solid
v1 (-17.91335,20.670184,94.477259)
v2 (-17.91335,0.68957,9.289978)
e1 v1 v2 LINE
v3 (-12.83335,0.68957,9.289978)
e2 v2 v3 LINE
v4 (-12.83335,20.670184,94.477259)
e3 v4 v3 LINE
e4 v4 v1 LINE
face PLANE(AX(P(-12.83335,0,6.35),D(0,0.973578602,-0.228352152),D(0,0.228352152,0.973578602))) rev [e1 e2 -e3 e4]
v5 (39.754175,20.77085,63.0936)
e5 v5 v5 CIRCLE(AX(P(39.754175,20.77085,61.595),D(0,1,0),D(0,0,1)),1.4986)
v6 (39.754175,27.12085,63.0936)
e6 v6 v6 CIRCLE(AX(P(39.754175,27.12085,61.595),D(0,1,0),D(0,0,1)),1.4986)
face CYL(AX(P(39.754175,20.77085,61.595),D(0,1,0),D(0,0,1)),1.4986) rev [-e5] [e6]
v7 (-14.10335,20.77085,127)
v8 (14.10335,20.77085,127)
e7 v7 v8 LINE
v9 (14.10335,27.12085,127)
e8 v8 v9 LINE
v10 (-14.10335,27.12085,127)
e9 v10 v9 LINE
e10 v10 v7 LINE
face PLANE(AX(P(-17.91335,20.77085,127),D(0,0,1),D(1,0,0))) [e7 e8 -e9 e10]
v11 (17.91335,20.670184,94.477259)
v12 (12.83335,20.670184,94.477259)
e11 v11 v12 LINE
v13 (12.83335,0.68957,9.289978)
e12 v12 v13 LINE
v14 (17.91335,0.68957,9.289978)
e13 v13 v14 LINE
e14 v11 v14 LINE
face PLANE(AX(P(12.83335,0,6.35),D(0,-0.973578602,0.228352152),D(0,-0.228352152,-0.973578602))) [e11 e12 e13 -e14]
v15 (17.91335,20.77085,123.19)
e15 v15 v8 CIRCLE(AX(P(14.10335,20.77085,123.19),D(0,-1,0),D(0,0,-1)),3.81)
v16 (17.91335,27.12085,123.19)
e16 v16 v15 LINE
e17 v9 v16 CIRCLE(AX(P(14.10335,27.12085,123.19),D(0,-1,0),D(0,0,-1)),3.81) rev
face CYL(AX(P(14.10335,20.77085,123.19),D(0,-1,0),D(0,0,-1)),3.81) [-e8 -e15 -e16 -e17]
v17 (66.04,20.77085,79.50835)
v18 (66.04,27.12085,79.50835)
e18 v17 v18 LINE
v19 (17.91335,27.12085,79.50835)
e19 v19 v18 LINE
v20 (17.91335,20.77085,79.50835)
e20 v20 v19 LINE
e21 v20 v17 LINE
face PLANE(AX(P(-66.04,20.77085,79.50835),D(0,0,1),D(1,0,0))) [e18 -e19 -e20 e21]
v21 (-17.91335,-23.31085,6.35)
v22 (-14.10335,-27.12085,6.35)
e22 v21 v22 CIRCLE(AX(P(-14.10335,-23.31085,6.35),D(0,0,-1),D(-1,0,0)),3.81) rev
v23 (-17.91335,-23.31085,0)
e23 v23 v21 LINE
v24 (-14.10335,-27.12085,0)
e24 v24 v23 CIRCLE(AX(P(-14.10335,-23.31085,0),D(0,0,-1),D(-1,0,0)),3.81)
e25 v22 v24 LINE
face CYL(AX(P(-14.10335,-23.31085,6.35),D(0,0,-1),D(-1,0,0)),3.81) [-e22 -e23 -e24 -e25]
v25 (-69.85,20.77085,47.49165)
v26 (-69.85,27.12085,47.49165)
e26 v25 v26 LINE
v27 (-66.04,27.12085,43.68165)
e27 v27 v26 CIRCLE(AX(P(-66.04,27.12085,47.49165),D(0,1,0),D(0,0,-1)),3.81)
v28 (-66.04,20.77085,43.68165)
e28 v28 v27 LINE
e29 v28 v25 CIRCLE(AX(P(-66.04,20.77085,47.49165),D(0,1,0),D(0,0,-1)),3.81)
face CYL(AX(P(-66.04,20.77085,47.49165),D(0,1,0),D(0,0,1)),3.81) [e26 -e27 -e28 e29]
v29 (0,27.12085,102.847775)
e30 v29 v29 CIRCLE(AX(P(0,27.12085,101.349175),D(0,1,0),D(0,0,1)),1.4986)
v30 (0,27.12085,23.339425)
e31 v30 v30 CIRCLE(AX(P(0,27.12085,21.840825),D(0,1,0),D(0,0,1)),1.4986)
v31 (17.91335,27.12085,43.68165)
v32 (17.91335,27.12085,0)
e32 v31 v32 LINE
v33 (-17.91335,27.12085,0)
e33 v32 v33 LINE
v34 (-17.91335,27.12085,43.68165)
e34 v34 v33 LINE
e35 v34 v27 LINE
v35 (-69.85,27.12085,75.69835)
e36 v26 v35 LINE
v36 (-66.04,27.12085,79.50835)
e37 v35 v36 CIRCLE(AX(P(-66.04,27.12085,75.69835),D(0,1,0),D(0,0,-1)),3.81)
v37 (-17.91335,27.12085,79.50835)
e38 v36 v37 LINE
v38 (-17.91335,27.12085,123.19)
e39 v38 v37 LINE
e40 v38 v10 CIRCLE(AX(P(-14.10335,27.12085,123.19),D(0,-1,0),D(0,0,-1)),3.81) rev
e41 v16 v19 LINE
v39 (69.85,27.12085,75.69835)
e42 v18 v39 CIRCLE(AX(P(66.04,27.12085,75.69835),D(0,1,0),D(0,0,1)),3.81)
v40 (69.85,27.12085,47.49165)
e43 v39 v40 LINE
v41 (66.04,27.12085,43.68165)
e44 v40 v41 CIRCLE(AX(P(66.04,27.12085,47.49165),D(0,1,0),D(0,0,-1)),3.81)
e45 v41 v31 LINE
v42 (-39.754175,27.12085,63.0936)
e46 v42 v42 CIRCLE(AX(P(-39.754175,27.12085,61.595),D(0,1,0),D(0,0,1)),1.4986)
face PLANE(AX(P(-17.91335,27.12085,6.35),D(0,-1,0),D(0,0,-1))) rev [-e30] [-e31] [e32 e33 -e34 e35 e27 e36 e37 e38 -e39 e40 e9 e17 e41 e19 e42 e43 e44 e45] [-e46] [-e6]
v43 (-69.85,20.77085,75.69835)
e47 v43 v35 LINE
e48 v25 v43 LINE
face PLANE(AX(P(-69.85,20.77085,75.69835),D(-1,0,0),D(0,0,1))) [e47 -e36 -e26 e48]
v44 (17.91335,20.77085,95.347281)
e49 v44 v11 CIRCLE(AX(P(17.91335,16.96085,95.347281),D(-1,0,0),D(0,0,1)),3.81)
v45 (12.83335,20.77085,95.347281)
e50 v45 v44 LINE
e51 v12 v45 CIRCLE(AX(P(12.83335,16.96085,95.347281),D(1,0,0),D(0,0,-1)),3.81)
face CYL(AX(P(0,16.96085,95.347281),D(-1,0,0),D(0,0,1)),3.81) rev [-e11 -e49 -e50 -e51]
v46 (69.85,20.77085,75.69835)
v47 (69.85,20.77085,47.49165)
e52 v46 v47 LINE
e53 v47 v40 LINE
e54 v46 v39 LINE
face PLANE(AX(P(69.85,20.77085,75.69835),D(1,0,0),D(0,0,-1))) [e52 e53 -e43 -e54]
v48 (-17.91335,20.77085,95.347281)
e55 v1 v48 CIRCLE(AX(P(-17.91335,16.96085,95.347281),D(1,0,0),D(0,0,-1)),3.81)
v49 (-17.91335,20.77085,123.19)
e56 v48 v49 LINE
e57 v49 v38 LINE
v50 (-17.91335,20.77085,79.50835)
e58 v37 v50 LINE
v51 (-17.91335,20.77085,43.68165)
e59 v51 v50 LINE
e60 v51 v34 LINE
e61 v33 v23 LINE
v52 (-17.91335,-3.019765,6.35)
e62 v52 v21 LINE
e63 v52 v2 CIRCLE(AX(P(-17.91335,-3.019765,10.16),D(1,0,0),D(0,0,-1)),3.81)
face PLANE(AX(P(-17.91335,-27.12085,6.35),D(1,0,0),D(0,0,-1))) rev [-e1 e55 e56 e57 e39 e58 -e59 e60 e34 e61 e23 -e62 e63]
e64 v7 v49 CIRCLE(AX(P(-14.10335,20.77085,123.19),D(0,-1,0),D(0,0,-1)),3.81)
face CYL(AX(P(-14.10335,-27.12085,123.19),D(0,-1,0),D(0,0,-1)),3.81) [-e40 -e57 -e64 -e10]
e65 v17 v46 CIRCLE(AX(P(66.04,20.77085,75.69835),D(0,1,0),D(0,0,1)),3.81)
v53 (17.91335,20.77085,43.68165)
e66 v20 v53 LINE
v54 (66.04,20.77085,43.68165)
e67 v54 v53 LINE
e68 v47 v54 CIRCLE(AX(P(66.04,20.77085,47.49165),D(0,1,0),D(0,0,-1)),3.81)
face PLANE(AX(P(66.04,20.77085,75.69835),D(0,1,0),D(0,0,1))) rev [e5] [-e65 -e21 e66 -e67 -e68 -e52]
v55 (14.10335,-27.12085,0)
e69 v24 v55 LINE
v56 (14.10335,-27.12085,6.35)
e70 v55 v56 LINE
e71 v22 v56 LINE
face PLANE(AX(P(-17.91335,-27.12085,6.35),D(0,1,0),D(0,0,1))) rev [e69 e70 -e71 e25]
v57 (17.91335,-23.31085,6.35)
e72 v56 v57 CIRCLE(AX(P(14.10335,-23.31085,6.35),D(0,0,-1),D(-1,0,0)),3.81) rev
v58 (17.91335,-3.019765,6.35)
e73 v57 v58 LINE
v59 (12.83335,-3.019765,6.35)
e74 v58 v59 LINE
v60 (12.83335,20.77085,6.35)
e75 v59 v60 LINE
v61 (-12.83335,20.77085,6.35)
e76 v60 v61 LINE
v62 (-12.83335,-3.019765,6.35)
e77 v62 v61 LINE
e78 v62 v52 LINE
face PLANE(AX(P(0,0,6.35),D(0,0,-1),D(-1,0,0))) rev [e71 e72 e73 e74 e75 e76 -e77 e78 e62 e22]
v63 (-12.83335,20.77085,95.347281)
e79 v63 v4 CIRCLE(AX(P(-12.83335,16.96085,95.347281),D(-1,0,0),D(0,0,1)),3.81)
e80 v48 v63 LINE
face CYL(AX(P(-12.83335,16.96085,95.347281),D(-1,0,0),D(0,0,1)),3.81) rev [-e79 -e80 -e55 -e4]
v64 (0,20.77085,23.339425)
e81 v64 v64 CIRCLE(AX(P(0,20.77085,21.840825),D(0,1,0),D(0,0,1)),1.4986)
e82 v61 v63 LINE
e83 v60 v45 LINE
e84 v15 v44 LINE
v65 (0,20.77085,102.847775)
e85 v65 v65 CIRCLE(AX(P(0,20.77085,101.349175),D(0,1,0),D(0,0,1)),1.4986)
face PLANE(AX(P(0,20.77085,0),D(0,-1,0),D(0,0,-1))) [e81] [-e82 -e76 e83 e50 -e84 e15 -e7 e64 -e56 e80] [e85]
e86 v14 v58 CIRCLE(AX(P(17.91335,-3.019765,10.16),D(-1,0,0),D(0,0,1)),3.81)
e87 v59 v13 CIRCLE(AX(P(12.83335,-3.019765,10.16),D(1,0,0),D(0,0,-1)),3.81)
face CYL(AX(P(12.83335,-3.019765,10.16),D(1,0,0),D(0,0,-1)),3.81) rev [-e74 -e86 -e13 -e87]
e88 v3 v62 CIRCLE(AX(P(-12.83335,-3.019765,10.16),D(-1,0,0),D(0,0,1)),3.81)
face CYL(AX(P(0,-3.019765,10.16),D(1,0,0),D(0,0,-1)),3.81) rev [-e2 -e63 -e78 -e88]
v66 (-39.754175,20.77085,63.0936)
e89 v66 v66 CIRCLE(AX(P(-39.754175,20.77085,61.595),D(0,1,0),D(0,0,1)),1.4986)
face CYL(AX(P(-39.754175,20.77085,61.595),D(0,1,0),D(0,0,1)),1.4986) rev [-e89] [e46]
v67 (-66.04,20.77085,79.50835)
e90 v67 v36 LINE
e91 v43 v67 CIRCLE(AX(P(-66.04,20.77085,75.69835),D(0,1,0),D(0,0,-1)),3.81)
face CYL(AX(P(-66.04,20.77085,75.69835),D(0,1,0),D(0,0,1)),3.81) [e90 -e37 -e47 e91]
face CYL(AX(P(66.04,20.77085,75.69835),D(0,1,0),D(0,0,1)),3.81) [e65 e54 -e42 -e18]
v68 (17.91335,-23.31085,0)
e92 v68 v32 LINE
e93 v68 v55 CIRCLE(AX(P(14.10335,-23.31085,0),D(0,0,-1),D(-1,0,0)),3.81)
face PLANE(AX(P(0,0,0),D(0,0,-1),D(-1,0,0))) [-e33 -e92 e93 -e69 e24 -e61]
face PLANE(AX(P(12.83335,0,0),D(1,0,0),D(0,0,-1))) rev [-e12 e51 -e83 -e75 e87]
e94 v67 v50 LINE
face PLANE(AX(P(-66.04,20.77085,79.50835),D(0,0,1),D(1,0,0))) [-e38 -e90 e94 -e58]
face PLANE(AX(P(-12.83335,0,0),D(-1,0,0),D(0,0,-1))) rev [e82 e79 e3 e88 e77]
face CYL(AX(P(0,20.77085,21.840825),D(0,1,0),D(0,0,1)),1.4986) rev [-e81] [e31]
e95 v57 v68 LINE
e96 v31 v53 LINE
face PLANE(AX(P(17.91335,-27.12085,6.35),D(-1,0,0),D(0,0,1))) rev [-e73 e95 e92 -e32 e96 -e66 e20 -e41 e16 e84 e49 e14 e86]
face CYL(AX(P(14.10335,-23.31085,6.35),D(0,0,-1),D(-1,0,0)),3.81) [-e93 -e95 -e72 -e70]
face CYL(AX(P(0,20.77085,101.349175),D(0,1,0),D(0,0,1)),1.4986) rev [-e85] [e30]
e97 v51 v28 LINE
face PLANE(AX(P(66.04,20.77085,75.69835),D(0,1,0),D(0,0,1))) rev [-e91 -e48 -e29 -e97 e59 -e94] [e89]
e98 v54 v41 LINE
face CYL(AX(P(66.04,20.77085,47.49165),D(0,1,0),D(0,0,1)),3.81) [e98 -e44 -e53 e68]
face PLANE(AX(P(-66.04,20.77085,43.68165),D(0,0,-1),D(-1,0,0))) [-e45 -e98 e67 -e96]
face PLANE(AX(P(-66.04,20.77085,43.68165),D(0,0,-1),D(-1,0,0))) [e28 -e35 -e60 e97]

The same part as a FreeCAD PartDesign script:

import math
import FreeCAD as App
import Part
import Sketcher
from FreeCAD import Vector
Q = App.Units.Quantity


def edges_at(feature, points):
    """Names of the edges that pass closest to the given points."""
    edges = feature.Shape.Edges
    near = lambda p: min(range(len(edges)), key=lambda i: edges[i].distToShape(Part.Vertex(*p))[0])
    return sorted({f"Edge{near(p) + 1}" for p in points})

doc = App.newDocument("Part")
body = doc.addObject("PartDesign::Body", "Body")

# Sketch on XY plane
sketch1 = doc.addObject("Sketcher::SketchObject", "Sketch")
body.addObject(sketch1)
sketch1.AttachmentSupport = (doc.XY_Plane, [""])
sketch1.MapMode = "FlatFace"
sketch1.addGeometry(Part.LineSegment(Vector(-18, 27, 0), Vector(-18, -27, 0)), False)
sketch1.addGeometry(Part.LineSegment(Vector(-18, -27, 0), Vector(18, -27, 0)), False)
sketch1.addGeometry(Part.LineSegment(Vector(18, -27, 0), Vector(18, 27, 0)), False)
sketch1.addGeometry(Part.LineSegment(Vector(18, 27, 0), Vector(-18, 27, 0)), False)
sketch1.addConstraint(Sketcher.Constraint("Coincident", 0, 2, 1, 1))
sketch1.addConstraint(Sketcher.Constraint("Coincident", 1, 2, 2, 1))
sketch1.addConstraint(Sketcher.Constraint("Coincident", 2, 2, 3, 1))
sketch1.addConstraint(Sketcher.Constraint("Coincident", 3, 2, 0, 1))
sketch1.addConstraint(Sketcher.Constraint("Vertical", 0))
sketch1.addConstraint(Sketcher.Constraint("Horizontal", 1))
sketch1.addConstraint(Sketcher.Constraint("Vertical", 2))
sketch1.addConstraint(Sketcher.Constraint("Horizontal", 3))
sketch1.addConstraint(Sketcher.Constraint("Symmetric", 0, 2, 2, 2, -1, 1))
sketch1.addConstraint(Sketcher.Constraint("DistanceX", 1, 1, 1, 2, Q("1.4105 in")))
sketch1.addConstraint(Sketcher.Constraint("DistanceY", 0, 2, 0, 1, Q("2.1355 in")))
pad1 = doc.addObject("PartDesign::Pad", "Pad")
body.addObject(pad1)
pad1.Profile = sketch1
pad1.Length = Q("0.25 in")

# Sketch on XZ plane
sketch2 = doc.addObject("Sketcher::SketchObject", "Sketch001")
body.addObject(sketch2)
sketch2.AttachmentSupport = (doc.XZ_Plane, [""])
sketch2.MapMode = "FlatFace"
sketch2.AttachmentOffset = App.Placement(Vector(0, 0, -27.12085), App.Rotation())
sketch2.addGeometry(Part.LineSegment(Vector(-18, 0, 0), Vector(-18, 127, 0)), False)
sketch2.addGeometry(Part.LineSegment(Vector(-18, 127, 0), Vector(18, 127, 0)), False)
sketch2.addGeometry(Part.LineSegment(Vector(18, 127, 0), Vector(18, 0, 0)), False)
sketch2.addGeometry(Part.LineSegment(Vector(18, 0, 0), Vector(-18, 0, 0)), False)
sketch2.addConstraint(Sketcher.Constraint("Coincident", 0, 2, 1, 1))
sketch2.addConstraint(Sketcher.Constraint("Coincident", 1, 2, 2, 1))
sketch2.addConstraint(Sketcher.Constraint("Coincident", 2, 2, 3, 1))
sketch2.addConstraint(Sketcher.Constraint("Coincident", 3, 2, 0, 1))
sketch2.addConstraint(Sketcher.Constraint("Vertical", 0))
sketch2.addConstraint(Sketcher.Constraint("Horizontal", 1))
sketch2.addConstraint(Sketcher.Constraint("Vertical", 2))
sketch2.addConstraint(Sketcher.Constraint("Horizontal", 3))
sketch2.addConstraint(Sketcher.Constraint("Symmetric", 2, 2, 3, 2, -1, 1))
sketch2.addConstraint(Sketcher.Constraint("DistanceY", 0, 1, 0, 2, Q("5 in")))
sketch2.addConstraint(Sketcher.Constraint("DistanceX", 1, 1, 1, 2, Q("1.4105 in")))
pad2 = doc.addObject("PartDesign::Pad", "Pad001")
body.addObject(pad2)
pad2.Profile = sketch2
pad2.Length = Q("0.25 in")

# Sketch on YZ plane
sketch3 = doc.addObject("Sketcher::SketchObject", "Sketch002")
body.addObject(sketch3)
sketch3.AttachmentSupport = (doc.YZ_Plane, [""])
sketch3.MapMode = "FlatFace"
sketch3.AttachmentOffset = App.Placement(Vector(0, 0, 17.91335), App.Rotation())
sketch3.addGeometry(Part.LineSegment(Vector(21, 95, 0), Vector(0, 6, 0)), False)
sketch3.addGeometry(Part.LineSegment(Vector(0, 6, 0), Vector(21, 6, 0)), False)
sketch3.addGeometry(Part.LineSegment(Vector(21, 6, 0), Vector(21, 95, 0)), False)
sketch3.addConstraint(Sketcher.Constraint("Coincident", 0, 2, 1, 1))
sketch3.addConstraint(Sketcher.Constraint("Coincident", 1, 2, 2, 1))
sketch3.addConstraint(Sketcher.Constraint("Coincident", 2, 2, 0, 1))
sketch3.addConstraint(Sketcher.Constraint("Horizontal", 1))
sketch3.addConstraint(Sketcher.Constraint("Vertical", 2))
sketch3.addConstraint(Sketcher.Constraint("PointOnObject", 0, 2, -2))
sketch3.addConstraint(Sketcher.Constraint("DistanceY", -1, 1, 0, 2, Q("0.25 in")))
sketch3.addConstraint(Sketcher.Constraint("DistanceX", 1, 1, 1, 2, 20.77085))
sketch3.addConstraint(Sketcher.Constraint("Distance", 0, 90.959729))
pad3 = doc.addObject("PartDesign::Pad", "Pad002")
body.addObject(pad3)
pad3.Profile = sketch3
pad3.Length = Q("0.2 in")
pad3.Reversed = True
doc.recompute()

mirrored = doc.addObject("PartDesign::Mirrored", "Mirrored")
body.addObject(mirrored)
mirrored.Originals = [pad3]
mirrored.MirrorPlane = (doc.YZ_Plane, [""])
body.Tip = mirrored
doc.recompute()

fillet = doc.addObject("PartDesign::Fillet", "Fillet")
body.addObject(fillet)
fillet.Base = (mirrored, edges_at(mirrored, [
    (-17.913, 23.946, 127),
    (17.913, 23.946, 127),
    (15.373, 0, 6.35),
    (15.373, 20.771, 94.906),
    (-15.373, 0, 6.35),
    (-15.373, 20.771, 94.906),
    (17.913, -27.121, 3.175),
    (-17.913, -27.121, 3.175),
]))
fillet.Radius = Q("0.15 in")

# Sketch on XZ plane
sketch4 = doc.addObject("Sketcher::SketchObject", "Sketch003")
body.addObject(sketch4)
sketch4.AttachmentSupport = (doc.XZ_Plane, [""])
sketch4.MapMode = "FlatFace"
sketch4.AttachmentOffset = App.Placement(Vector(0, 0, -27.12085), App.Rotation())
sketch4.addGeometry(Part.LineSegment(Vector(-66, 79.5, 0), Vector(66, 79.5, 0)), False)
sketch4.addGeometry(Part.ArcOfCircle(Part.Circle(Vector(66, 75.7, 0), Vector(0, 0, 1), 3.8), math.radians(0), math.radians(90)), False)
sketch4.addGeometry(Part.LineSegment(Vector(69.8, 75.7, 0), Vector(69.8, 47.5, 0)), False)
sketch4.addGeometry(Part.ArcOfCircle(Part.Circle(Vector(66, 47.5, 0), Vector(0, 0, 1), 3.8), math.radians(-90), math.radians(0)), False)
sketch4.addGeometry(Part.LineSegment(Vector(66, 43.7, 0), Vector(-66, 43.7, 0)), False)
sketch4.addGeometry(Part.ArcOfCircle(Part.Circle(Vector(-66, 47.5, 0), Vector(0, 0, 1), 3.8), math.radians(-180), math.radians(-90)), False)
sketch4.addGeometry(Part.LineSegment(Vector(-69.8, 47.5, 0), Vector(-69.8, 75.7, 0)), False)
sketch4.addGeometry(Part.ArcOfCircle(Part.Circle(Vector(-66, 75.7, 0), Vector(0, 0, 1), 3.8), math.radians(90), math.radians(180)), False)
sketch4.addConstraint(Sketcher.Constraint("Tangent", 0, 2, 1, 2))
sketch4.addConstraint(Sketcher.Constraint("Tangent", 1, 1, 2, 1))
sketch4.addConstraint(Sketcher.Constraint("Tangent", 2, 2, 3, 2))
sketch4.addConstraint(Sketcher.Constraint("Tangent", 3, 1, 4, 1))
sketch4.addConstraint(Sketcher.Constraint("Tangent", 4, 2, 5, 2))
sketch4.addConstraint(Sketcher.Constraint("Tangent", 5, 1, 6, 1))
sketch4.addConstraint(Sketcher.Constraint("Tangent", 6, 2, 7, 2))
sketch4.addConstraint(Sketcher.Constraint("Tangent", 7, 1, 0, 1))
sketch4.addConstraint(Sketcher.Constraint("Horizontal", 0))
sketch4.addConstraint(Sketcher.Constraint("Vertical", 2))
sketch4.addConstraint(Sketcher.Constraint("Horizontal", 4))
sketch4.addConstraint(Sketcher.Constraint("Vertical", 6))
sketch4.addConstraint(Sketcher.Constraint("Equal", 1, 3))
sketch4.addConstraint(Sketcher.Constraint("Equal", 3, 5))
sketch4.addConstraint(Sketcher.Constraint("Equal", 5, 7))
sketch4.addConstraint(Sketcher.Constraint("Radius", 1, Q("0.15 in")))
sketch4.addConstraint(Sketcher.Constraint("DistanceX", 0, 1, 0, 2, Q("5.2 in")))
sketch4.addConstraint(Sketcher.Constraint("DistanceX", -1, 1, 1, 3, Q("2.6 in")))
sketch4.addConstraint(Sketcher.Constraint("DistanceY", 2, 2, 2, 1, Q("1.1105 in")))
sketch4.addConstraint(Sketcher.Constraint("DistanceY", -1, 1, 1, 3, 75.69835))
pad4 = doc.addObject("PartDesign::Pad", "Pad003")
body.addObject(pad4)
pad4.Profile = sketch4
pad4.Length = Q("0.25 in")

# Sketch on XZ plane
sketch5 = doc.addObject("Sketcher::SketchObject", "Sketch004")
body.addObject(sketch5)
sketch5.AttachmentSupport = (doc.XZ_Plane, [""])
sketch5.MapMode = "FlatFace"
sketch5.AttachmentOffset = App.Placement(Vector(0, 0, -27.12085), App.Rotation())
sketch5.addGeometry(Part.Circle(Vector(0, 21.8, 0), Vector(0, 0, 1), 1.5), False)
sketch5.addGeometry(Part.Circle(Vector(39.8, 61.6, 0), Vector(0, 0, 1), 1.5), False)
sketch5.addGeometry(Part.Circle(Vector(0, 101.3, 0), Vector(0, 0, 1), 1.5), False)
sketch5.addGeometry(Part.Circle(Vector(-39.8, 61.6, 0), Vector(0, 0, 1), 1.5), False)
sketch5.addConstraint(Sketcher.Constraint("Equal", 0, 1))
sketch5.addConstraint(Sketcher.Constraint("Equal", 1, 2))
sketch5.addConstraint(Sketcher.Constraint("Equal", 2, 3))
sketch5.addConstraint(Sketcher.Constraint("Symmetric", 1, 3, 3, 3, -2))
sketch5.addConstraint(Sketcher.Constraint("PointOnObject", 0, 3, -2))
sketch5.addConstraint(Sketcher.Constraint("PointOnObject", 2, 3, -2))
sketch5.addConstraint(Sketcher.Constraint("Diameter", 0, Q("0.118 in")))
sketch5.addConstraint(Sketcher.Constraint("DistanceY", -1, 1, 1, 3, Q("2.425 in")))
sketch5.addConstraint(Sketcher.Constraint("DistanceY", 0, 3, 2, 3, 79.50835))
sketch5.addConstraint(Sketcher.Constraint("DistanceX", 3, 3, 1, 3, 79.50835))
sketch5.addConstraint(Sketcher.Constraint("DistanceY", -1, 1, 0, 3, 21.840825))
pocket1 = doc.addObject("PartDesign::Pocket", "Pocket")
body.addObject(pocket1)
pocket1.Profile = sketch5
pocket1.Length = Q("0.25 in")
pocket1.Reversed = True

doc.recompute()
